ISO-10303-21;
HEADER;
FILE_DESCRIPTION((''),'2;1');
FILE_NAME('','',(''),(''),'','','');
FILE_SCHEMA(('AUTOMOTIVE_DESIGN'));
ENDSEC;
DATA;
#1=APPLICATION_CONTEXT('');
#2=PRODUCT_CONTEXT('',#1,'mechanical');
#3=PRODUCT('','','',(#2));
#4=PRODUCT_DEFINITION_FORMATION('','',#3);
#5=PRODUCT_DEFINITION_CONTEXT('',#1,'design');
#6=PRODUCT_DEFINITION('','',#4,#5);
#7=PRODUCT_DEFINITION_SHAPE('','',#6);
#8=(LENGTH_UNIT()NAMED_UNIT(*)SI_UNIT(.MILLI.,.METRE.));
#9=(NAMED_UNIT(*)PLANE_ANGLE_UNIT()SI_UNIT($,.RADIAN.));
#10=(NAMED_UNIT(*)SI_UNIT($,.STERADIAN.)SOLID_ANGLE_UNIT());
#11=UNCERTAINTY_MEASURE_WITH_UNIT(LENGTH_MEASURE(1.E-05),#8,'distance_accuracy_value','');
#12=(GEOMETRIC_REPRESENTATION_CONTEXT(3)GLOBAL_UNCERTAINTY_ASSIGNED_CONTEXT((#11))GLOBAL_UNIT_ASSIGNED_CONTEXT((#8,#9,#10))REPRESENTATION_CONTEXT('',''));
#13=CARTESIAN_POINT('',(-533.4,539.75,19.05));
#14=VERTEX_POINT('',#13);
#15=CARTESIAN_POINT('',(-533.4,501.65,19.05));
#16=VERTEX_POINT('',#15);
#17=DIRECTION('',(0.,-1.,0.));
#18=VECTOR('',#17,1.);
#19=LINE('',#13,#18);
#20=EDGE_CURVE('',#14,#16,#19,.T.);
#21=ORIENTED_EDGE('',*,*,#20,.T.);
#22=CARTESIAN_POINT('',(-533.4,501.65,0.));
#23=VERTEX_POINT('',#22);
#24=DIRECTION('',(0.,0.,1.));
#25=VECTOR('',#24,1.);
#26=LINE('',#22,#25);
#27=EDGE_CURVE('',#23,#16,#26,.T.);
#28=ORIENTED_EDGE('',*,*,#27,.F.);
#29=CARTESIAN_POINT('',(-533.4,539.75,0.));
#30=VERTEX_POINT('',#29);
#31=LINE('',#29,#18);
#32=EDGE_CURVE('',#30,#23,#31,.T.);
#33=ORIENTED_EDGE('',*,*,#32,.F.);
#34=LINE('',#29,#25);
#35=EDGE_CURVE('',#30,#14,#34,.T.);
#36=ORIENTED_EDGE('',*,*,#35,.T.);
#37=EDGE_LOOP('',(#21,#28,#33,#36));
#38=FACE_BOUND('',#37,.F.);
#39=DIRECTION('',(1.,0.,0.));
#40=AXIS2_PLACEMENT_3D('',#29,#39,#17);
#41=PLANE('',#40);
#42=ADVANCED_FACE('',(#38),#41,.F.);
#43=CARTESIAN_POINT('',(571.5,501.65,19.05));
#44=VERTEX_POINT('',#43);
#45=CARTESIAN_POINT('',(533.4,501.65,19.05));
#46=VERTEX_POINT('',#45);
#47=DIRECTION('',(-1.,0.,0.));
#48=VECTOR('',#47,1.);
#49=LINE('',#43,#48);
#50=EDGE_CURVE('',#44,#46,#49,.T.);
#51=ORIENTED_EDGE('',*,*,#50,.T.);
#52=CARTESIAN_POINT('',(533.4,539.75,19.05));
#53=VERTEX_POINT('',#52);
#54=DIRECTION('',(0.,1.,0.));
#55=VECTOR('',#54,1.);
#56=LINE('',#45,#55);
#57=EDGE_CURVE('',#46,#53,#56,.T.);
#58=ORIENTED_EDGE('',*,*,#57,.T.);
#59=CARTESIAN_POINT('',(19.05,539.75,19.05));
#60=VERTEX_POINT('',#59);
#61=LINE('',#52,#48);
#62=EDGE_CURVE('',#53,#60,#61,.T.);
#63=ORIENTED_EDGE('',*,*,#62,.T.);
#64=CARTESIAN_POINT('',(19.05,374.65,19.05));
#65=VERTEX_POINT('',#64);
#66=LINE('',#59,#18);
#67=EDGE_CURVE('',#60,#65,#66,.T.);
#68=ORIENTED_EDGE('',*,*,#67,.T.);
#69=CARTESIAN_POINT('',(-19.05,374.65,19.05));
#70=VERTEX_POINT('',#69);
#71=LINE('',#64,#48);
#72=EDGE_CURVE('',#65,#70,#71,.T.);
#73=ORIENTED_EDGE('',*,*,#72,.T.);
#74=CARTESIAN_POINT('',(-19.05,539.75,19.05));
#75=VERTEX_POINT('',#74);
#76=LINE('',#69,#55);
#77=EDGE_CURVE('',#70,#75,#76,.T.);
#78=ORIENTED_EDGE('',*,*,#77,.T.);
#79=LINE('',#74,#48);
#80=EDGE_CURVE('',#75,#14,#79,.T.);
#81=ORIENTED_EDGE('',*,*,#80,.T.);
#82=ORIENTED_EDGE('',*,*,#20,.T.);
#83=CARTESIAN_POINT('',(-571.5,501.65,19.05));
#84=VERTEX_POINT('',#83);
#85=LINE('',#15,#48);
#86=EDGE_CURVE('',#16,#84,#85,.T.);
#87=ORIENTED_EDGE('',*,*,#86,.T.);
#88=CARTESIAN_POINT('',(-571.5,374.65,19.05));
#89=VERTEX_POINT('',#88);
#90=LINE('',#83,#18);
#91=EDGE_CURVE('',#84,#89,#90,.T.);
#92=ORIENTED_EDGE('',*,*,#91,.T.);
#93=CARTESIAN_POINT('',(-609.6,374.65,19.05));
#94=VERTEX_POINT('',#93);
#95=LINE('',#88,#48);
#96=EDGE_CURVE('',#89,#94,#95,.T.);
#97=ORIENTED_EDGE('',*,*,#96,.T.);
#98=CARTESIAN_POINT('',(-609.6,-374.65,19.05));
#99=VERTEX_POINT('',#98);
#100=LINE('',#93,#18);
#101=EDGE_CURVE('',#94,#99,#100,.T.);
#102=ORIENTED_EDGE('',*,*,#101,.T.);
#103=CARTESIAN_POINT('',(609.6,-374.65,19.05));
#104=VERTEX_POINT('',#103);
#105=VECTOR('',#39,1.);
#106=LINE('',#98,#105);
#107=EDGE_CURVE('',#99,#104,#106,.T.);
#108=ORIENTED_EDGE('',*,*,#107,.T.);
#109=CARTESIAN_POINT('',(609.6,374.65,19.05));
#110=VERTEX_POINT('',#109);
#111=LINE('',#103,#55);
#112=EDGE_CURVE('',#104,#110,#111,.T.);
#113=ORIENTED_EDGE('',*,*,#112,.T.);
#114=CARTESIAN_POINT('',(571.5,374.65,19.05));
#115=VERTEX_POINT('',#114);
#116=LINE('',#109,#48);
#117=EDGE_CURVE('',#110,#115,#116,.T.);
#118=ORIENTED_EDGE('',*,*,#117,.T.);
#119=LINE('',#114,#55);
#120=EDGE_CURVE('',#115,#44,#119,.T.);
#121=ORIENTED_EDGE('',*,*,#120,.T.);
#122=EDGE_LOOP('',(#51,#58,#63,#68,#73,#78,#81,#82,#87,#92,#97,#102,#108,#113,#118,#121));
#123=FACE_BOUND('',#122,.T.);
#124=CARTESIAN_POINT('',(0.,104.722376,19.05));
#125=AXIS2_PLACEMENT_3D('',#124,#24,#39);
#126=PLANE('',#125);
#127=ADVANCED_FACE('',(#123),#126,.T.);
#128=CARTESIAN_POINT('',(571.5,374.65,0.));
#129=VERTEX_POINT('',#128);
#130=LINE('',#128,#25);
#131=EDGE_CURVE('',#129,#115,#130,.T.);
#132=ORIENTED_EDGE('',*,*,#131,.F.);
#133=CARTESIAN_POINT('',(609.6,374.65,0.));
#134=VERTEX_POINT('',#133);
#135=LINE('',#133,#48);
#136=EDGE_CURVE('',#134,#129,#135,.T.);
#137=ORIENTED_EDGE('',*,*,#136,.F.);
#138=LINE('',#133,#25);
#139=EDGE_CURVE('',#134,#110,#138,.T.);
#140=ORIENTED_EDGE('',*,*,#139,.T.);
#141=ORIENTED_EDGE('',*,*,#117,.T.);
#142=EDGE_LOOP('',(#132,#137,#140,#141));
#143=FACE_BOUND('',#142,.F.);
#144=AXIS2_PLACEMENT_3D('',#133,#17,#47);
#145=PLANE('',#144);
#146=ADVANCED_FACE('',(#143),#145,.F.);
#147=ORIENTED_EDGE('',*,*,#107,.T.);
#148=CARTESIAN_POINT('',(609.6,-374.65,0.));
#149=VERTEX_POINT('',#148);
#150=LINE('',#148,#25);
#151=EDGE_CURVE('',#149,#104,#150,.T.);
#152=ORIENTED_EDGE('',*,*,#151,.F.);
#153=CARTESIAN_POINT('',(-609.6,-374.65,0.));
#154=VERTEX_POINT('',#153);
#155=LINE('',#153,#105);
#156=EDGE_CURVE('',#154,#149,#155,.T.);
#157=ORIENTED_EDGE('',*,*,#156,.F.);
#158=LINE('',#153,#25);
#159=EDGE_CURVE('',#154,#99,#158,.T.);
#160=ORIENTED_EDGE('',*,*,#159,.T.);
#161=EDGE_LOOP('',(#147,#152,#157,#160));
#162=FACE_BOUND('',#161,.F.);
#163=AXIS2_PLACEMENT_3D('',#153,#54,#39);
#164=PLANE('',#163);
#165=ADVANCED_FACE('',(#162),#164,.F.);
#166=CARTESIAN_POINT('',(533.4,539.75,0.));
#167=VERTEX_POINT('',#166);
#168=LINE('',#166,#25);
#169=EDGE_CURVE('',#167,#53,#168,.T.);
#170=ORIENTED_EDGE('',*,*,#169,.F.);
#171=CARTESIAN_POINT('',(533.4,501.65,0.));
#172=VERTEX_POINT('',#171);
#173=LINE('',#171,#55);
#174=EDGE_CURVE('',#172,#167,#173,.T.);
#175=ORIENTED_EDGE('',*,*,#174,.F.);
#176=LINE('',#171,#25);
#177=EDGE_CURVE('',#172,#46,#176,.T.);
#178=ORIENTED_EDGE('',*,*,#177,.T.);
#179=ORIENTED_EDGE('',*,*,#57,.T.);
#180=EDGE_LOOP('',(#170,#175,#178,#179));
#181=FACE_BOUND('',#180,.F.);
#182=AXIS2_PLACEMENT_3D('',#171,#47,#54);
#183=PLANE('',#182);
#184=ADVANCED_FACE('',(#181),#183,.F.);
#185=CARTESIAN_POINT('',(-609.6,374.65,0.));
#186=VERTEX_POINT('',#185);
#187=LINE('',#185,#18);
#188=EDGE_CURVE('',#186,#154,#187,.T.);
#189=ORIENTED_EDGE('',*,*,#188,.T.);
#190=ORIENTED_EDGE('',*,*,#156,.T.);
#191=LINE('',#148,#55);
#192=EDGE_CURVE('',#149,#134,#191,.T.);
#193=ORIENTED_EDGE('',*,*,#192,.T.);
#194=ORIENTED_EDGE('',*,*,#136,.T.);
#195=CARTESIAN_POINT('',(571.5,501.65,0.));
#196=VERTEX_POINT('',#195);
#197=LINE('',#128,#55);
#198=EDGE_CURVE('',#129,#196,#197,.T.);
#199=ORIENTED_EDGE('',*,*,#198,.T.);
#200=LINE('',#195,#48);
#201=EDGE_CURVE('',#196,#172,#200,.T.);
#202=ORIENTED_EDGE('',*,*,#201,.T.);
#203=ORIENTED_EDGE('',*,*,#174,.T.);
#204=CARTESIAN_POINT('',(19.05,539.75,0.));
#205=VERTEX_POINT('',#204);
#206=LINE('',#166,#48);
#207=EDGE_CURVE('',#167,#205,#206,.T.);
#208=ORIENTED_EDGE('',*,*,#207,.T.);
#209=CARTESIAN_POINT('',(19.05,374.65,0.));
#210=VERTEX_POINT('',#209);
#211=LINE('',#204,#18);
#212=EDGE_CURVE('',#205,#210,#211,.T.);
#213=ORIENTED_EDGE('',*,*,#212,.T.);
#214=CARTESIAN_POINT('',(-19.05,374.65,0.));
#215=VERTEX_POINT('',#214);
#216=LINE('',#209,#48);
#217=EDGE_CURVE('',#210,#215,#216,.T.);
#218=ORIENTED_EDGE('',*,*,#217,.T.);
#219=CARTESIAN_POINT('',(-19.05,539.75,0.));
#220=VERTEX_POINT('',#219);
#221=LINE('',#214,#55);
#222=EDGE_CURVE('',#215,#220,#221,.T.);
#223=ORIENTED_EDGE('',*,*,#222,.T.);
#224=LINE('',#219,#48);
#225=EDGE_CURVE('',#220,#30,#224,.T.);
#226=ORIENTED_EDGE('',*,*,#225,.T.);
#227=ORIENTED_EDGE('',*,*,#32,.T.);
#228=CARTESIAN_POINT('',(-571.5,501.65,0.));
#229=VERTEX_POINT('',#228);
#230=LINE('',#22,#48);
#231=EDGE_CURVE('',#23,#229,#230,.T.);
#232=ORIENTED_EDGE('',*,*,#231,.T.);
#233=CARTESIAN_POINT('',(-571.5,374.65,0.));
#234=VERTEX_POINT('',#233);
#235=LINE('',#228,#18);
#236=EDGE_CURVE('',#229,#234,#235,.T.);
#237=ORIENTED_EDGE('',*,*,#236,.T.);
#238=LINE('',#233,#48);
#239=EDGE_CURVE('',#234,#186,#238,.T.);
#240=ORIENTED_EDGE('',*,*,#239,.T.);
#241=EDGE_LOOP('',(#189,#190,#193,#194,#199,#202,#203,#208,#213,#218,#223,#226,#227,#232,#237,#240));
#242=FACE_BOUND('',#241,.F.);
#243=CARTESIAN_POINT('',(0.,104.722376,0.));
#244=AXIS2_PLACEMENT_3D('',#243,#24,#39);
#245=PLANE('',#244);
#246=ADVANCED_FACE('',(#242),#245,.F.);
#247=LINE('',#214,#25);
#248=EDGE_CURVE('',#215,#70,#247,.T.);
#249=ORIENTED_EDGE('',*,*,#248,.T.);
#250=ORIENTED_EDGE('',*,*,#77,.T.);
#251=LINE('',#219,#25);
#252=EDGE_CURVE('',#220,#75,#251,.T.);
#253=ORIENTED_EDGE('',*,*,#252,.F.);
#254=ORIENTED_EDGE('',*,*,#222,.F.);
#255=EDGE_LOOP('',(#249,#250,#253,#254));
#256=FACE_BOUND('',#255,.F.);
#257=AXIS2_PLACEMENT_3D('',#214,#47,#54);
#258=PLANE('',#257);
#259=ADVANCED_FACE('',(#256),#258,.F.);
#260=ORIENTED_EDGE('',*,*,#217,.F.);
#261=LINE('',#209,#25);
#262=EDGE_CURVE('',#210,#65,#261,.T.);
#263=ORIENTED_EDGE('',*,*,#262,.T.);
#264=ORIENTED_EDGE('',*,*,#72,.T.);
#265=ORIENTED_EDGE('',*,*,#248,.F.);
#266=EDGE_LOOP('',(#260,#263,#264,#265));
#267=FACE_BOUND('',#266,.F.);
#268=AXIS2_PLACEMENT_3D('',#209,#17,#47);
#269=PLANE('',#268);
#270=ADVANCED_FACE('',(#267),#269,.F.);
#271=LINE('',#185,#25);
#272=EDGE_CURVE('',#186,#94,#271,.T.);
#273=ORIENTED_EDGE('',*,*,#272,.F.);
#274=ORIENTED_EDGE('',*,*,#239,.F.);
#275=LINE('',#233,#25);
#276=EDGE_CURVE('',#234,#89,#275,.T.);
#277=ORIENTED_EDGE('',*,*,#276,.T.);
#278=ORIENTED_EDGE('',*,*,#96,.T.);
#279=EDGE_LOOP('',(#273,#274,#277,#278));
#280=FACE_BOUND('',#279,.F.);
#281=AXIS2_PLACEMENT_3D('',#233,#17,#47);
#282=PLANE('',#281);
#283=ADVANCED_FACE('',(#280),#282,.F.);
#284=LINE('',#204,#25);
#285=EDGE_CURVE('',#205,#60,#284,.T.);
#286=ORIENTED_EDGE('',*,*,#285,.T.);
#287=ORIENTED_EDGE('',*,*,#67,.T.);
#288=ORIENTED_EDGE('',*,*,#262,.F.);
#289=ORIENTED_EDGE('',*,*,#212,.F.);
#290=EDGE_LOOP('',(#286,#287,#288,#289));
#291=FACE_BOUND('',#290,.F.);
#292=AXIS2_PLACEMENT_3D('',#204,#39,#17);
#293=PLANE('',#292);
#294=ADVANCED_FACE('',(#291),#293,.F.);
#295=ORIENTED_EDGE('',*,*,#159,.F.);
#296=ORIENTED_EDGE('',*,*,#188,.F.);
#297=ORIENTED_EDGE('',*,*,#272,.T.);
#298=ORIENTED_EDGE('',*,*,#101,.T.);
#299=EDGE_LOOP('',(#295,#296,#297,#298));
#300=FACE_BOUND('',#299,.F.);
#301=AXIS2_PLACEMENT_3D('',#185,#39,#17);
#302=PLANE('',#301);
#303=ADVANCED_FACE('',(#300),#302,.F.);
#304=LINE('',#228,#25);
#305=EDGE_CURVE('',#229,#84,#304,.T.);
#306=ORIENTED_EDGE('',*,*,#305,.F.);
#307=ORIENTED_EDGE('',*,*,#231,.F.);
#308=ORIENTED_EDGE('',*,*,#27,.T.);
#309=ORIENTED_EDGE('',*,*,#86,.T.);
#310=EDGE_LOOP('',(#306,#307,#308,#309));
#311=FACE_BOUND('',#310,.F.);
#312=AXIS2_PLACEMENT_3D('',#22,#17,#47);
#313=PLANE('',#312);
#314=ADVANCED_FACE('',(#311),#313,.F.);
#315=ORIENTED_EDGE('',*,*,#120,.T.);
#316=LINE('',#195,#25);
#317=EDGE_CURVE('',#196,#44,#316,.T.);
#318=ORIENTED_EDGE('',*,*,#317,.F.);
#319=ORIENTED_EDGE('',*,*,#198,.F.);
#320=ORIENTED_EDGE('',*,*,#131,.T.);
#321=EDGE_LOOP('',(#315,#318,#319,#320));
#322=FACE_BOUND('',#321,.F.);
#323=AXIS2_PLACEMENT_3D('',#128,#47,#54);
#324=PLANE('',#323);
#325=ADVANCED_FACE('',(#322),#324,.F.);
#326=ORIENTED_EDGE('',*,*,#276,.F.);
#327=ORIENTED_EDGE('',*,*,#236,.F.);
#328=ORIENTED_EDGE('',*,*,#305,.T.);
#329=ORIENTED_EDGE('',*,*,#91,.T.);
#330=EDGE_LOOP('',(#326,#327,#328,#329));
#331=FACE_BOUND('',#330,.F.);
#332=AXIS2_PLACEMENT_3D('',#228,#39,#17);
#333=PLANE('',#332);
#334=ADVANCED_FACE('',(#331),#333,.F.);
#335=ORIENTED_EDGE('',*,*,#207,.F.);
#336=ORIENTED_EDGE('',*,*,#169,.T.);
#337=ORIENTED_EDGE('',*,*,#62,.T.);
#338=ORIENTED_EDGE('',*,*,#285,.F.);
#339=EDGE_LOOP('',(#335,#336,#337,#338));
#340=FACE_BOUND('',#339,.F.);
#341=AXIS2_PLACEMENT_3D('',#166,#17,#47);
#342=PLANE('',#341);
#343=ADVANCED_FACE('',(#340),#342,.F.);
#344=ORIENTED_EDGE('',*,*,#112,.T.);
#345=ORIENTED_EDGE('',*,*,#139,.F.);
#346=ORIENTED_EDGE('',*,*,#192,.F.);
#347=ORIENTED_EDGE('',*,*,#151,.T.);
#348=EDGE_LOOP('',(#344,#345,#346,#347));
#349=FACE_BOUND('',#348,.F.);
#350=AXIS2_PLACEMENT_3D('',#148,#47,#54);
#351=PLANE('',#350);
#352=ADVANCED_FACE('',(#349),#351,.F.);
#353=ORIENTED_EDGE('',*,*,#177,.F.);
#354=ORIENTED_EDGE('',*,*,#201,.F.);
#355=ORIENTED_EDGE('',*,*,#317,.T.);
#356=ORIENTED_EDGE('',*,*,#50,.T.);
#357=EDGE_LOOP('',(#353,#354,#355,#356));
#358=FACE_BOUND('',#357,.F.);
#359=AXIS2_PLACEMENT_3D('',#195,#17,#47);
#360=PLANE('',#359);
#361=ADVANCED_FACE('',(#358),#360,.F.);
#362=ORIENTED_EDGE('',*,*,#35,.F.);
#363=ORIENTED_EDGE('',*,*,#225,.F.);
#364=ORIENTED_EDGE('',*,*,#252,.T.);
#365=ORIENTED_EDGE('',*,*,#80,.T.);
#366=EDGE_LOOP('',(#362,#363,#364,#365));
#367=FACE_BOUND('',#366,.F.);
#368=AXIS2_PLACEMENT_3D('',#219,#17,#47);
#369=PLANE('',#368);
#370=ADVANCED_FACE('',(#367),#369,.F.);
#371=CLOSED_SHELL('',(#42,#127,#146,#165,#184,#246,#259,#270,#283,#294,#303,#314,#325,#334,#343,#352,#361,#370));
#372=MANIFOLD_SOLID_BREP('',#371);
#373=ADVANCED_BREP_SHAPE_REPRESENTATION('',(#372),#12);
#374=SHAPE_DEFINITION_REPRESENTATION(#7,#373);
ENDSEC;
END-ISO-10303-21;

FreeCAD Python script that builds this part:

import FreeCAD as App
import Part
import Sketcher

V = App.Vector
Q = App.Units.Quantity

doc = App.newDocument("Part")
params = doc.addObject("Spreadsheet::Sheet", "Params")
for row, (alias, value) in enumerate([
    ("sketch1_width", "48 in"),
    ("sketch1_height", "5 in"),
    ("sketch1_width2", "1.5 in"),
    ("sketch1_height2", "29.5 in"),
    ("pad1_length", "0.75 in"),
], start=1):
    params.set(f"A{row}", alias)
    params.set(f"B{row}", "=" + value)
    params.setAlias(f"B{row}", alias)

body = doc.addObject("PartDesign::Body", "Body")

sketch1 = doc.addObject("Sketcher::SketchObject", "Sketch")
body.addObject(sketch1)
sketch1.AttachmentSupport = (doc.XY_Plane, [""])
sketch1.MapMode = "FlatFace"
sketch1.addGeometry([
    Part.LineSegment(V(-19.05, 539.75, 0), V(-533.4, 539.75, 0)),
    Part.LineSegment(V(-533.4, 539.75, 0), V(-533.4, 501.65, 0)),
    Part.LineSegment(V(-533.4, 501.65, 0), V(-571.5, 501.65, 0)),
    Part.LineSegment(V(-571.5, 501.65, 0), V(-571.5, 374.65, 0)),
    Part.LineSegment(V(-571.5, 374.65, 0), V(-609.6, 374.65, 0)),
    Part.LineSegment(V(-609.6, 374.65, 0), V(-609.6, -374.65, 0)),
    Part.LineSegment(V(-609.6, -374.65, 0), V(609.6, -374.65, 0)),
    Part.LineSegment(V(609.6, -374.65, 0), V(609.6, 374.65, 0)),
    Part.LineSegment(V(609.6, 374.65, 0), V(571.5, 374.65, 0)),
    Part.LineSegment(V(571.5, 374.65, 0), V(571.5, 501.65, 0)),
    Part.LineSegment(V(571.5, 501.65, 0), V(533.4, 501.65, 0)),
    Part.LineSegment(V(533.4, 501.65, 0), V(533.4, 539.75, 0)),
    Part.LineSegment(V(533.4, 539.75, 0), V(19.05, 539.75, 0)),
    Part.LineSegment(V(19.05, 539.75, 0), V(19.05, 374.65, 0)),
    Part.LineSegment(V(19.05, 374.65, 0), V(-19.05, 374.65, 0)),
    Part.LineSegment(V(-19.05, 374.65, 0), V(-19.05, 539.75, 0)),
], False)
sketch1.addConstraint([
    Sketcher.Constraint("Coincident", 0, 2, 1, 1),
    Sketcher.Constraint("Coincident", 1, 2, 2, 1),
    Sketcher.Constraint("Coincident", 2, 2, 3, 1),
    Sketcher.Constraint("Coincident", 3, 2, 4, 1),
    Sketcher.Constraint("Coincident", 4, 2, 5, 1),
    Sketcher.Constraint("Coincident", 5, 2, 6, 1),
    Sketcher.Constraint("Coincident", 6, 2, 7, 1),
    Sketcher.Constraint("Coincident", 7, 2, 8, 1),
    Sketcher.Constraint("Coincident", 8, 2, 9, 1),
    Sketcher.Constraint("Coincident", 9, 2, 10, 1),
    Sketcher.Constraint("Coincident", 10, 2, 11, 1),
    Sketcher.Constraint("Coincident", 11, 2, 12, 1),
    Sketcher.Constraint("Coincident", 12, 2, 13, 1),
    Sketcher.Constraint("Coincident", 13, 2, 14, 1),
    Sketcher.Constraint("Coincident", 14, 2, 15, 1),
    Sketcher.Constraint("Coincident", 15, 2, 0, 1),
    Sketcher.Constraint("Horizontal", 0),
    Sketcher.Constraint("Vertical", 1),
    Sketcher.Constraint("Horizontal", 2),
    Sketcher.Constraint("Vertical", 3),
    Sketcher.Constraint("Horizontal", 4),
    Sketcher.Constraint("Vertical", 5),
    Sketcher.Constraint("Horizontal", 6),
    Sketcher.Constraint("Vertical", 7),
    Sketcher.Constraint("Horizontal", 8),
    Sketcher.Constraint("Vertical", 9),
    Sketcher.Constraint("Horizontal", 10),
    Sketcher.Constraint("Vertical", 11),
    Sketcher.Constraint("Horizontal", 12),
    Sketcher.Constraint("Vertical", 13),
    Sketcher.Constraint("Horizontal", 14),
    Sketcher.Constraint("Vertical", 15),
    Sketcher.Constraint("Symmetric", 4, 2, 6, 2, -1, 1),
    Sketcher.Constraint("Symmetric", 3, 2, 8, 2, -2),
    Sketcher.Constraint("Symmetric", 1, 2, 10, 2, -2),
    Sketcher.Constraint("Symmetric", 12, 2, 15, 2, -2),
    Sketcher.Constraint("Horizontal", 8, 2, 13, 2),
    Sketcher.Constraint("Equal", 2, 4),
    Sketcher.Constraint("Equal", 10, 14),
    Sketcher.Constraint("Equal", 14, 1),
    Sketcher.Constraint("DistanceX", 6, 1, 6, 2, Q("48 in")),
    Sketcher.Constraint("DistanceY", 3, 2, 3, 1, Q("5 in")),
    Sketcher.Constraint("DistanceX", 2, 2, 2, 1, Q("1.5 in")),
    Sketcher.Constraint("DistanceY", 5, 2, 5, 1, Q("29.5 in")),
])
sketch1.setExpression("Constraints[40]", "Params.sketch1_width")
sketch1.setExpression("Constraints[41]", "Params.sketch1_height")
sketch1.setExpression("Constraints[42]", "Params.sketch1_width2")
sketch1.setExpression("Constraints[43]", "Params.sketch1_height2")
pad1 = doc.addObject("PartDesign::Pad", "Pad")
body.addObject(pad1)
pad1.Profile = sketch1
pad1.setExpression("Length", "Params.pad1_length")

doc.recompute()
